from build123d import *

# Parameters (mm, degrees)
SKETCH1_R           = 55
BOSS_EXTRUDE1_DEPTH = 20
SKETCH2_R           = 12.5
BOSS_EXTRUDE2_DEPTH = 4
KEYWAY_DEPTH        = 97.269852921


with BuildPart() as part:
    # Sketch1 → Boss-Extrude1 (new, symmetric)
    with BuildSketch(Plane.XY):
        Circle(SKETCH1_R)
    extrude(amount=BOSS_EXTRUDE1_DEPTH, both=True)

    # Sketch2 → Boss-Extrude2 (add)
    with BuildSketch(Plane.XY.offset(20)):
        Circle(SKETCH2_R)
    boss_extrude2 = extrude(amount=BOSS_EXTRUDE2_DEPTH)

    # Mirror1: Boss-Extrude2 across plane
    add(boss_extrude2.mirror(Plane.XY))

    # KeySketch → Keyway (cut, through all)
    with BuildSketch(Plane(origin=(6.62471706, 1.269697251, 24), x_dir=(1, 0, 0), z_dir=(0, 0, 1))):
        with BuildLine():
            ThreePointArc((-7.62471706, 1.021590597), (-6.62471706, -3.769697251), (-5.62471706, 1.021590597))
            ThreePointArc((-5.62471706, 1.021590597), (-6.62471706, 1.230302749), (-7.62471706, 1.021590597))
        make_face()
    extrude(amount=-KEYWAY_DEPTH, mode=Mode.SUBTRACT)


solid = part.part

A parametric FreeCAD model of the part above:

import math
import FreeCAD as App
import Part
import Sketcher
from FreeCAD import Vector
Q = App.Units.Quantity

doc = App.newDocument("Part")
body = doc.addObject("PartDesign::Body", "Body")

# Sketch on XY plane
sketch1 = body.newObject("Sketcher::SketchObject", "Sketch")
sketch1.AttachmentSupport = (doc.getObject("XY_Plane"), [""])
sketch1.MapMode = "FlatFace"
sketch1.addGeometry(Part.Circle(Vector(0, 0, 0), Vector(0, 0, 1), 55), False)
sketch1.addConstraint([
    Sketcher.Constraint("Coincident", 0, 3, -1, 1),
    Sketcher.Constraint("Diameter", 0, Q("110 mm")),
])
pad1 = body.newObject("PartDesign::Pad", "Pad")
pad1.Profile = sketch1
pad1.Length = 40
pad1.Midplane = True

# Sketch on XY plane
sketch2 = body.newObject("Sketcher::SketchObject", "Sketch001")
sketch2.AttachmentSupport = (doc.getObject("XY_Plane"), [""])
sketch2.MapMode = "FlatFace"
sketch2.AttachmentOffset = App.Placement(Vector(0, 0, 20), App.Rotation())
sketch2.addGeometry(Part.Circle(Vector(0, 0, 0), Vector(0, 0, 1), 12.5), False)
sketch2.addConstraint([
    Sketcher.Constraint("Coincident", 0, 3, -1, 1),
    Sketcher.Constraint("Diameter", 0, Q("25 mm")),
])
pad2 = body.newObject("PartDesign::Pad", "Pad001")
pad2.Profile = sketch2
pad2.Length = 4
doc.recompute()

mirrored = body.newObject("PartDesign::Mirrored", "Mirrored")
mirrored.Originals = [pad2]
mirrored.MirrorPlane = (doc.getObject("XY_Plane"), [""])
body.Tip = mirrored

# Sketch on XY plane
sketch3 = body.newObject("Sketcher::SketchObject", "Sketch002")
sketch3.AttachmentSupport = (doc.getObject("XY_Plane"), [""])
sketch3.MapMode = "FlatFace"
sketch3.AttachmentOffset = App.Placement(Vector(0, 0, 24), App.Rotation())
sketch3.addGeometry([
    Part.ArcOfCircle(Part.Circle(Vector(0, 0, 0), Vector(0, 0, 1), 2.5), math.radians(113.578178), math.radians(426.421822)),
    Part.ArcOfCircle(Part.Circle(Vector(0, 0, 0), Vector(0, 0, 1), 2.5), math.radians(66.421822), math.radians(113.578178)),
], False)
sketch3.addConstraint([
    Sketcher.Constraint("Tangent", 0, 1, 1, 2),
    Sketcher.Constraint("Coincident", 1, 1, 0, 2),
    Sketcher.Constraint("Coincident", 0, 3, -1, 1),
    Sketcher.Constraint("Horizontal", 0, 1, 1, 1),
    Sketcher.Constraint("Radius", 0, Q("2.5 mm")),
    Sketcher.Constraint("DistanceX", 0, 1, -1, 1, Q("1 mm")),
])
pocket1 = body.newObject("PartDesign::Pocket", "Pocket")
pocket1.Profile = sketch3
pocket1.Type = "ThroughAll"

doc.recompute()
